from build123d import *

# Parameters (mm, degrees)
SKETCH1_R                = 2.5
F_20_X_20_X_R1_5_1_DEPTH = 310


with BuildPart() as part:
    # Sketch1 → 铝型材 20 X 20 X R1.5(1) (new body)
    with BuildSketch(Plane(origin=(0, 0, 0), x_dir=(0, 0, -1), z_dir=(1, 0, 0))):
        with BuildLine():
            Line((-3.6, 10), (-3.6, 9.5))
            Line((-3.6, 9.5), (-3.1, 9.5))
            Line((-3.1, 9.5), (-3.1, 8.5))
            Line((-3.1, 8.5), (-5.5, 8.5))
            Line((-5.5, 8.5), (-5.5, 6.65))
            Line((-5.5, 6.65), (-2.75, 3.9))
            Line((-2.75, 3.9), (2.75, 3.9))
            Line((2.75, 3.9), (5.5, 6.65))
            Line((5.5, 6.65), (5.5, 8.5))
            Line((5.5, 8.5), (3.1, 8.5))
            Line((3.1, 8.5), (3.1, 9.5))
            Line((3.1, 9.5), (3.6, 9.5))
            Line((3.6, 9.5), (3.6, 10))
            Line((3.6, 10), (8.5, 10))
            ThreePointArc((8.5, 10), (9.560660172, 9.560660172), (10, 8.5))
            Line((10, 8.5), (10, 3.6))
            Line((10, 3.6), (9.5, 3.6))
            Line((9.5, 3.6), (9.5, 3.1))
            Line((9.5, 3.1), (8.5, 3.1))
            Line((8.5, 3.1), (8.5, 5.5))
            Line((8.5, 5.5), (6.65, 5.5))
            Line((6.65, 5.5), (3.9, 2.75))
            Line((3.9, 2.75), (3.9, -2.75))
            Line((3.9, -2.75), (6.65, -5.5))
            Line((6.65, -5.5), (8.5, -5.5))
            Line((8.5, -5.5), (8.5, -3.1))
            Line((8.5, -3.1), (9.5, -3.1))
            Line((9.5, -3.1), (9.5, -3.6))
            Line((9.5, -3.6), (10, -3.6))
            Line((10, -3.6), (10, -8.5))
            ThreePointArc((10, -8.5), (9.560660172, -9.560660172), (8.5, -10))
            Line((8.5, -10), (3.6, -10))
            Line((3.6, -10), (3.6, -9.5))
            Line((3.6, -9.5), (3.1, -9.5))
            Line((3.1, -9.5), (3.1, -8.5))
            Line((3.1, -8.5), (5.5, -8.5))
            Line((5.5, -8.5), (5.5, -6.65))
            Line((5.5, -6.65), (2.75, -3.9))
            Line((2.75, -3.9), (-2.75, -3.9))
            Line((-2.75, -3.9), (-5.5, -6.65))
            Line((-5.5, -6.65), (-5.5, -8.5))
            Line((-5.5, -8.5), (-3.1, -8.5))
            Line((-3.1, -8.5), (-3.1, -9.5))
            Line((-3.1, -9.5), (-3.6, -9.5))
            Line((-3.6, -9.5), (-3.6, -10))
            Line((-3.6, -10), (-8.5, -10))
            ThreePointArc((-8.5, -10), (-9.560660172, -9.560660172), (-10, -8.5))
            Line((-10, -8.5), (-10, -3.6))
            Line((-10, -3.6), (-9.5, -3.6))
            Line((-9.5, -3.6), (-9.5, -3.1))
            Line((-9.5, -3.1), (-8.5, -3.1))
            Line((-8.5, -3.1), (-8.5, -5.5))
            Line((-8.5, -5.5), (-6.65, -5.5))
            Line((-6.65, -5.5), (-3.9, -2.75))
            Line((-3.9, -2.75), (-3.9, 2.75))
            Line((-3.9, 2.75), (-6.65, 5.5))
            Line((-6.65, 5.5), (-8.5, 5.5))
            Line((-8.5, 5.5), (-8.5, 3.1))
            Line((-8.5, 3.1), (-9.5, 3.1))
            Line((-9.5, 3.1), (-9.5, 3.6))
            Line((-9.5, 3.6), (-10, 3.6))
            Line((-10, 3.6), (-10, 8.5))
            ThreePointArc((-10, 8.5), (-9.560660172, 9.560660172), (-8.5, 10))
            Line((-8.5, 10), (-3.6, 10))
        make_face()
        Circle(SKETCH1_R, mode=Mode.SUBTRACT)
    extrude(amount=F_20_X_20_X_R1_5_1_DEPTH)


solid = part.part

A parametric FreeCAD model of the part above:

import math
import FreeCAD as App
import Part
import Sketcher

doc = App.newDocument("Part")
body = doc.addObject("PartDesign::Body", "Body")

# Sketch on YZ plane
sketch1 = body.newObject("Sketcher::SketchObject", "Sketch")
sketch1.AttachmentSupport = (doc.getObject("YZ_Plane"), [""])
sketch1.MapMode = "FlatFace"
sketch1.addGeometry(Part.LineSegment(App.Vector(9.5, 3.6, 0), App.Vector(10, 3.6, 0)), False)
sketch1.addGeometry(Part.LineSegment(App.Vector(10, 3.6, 0), App.Vector(10, 8.5, 0)), False)
sketch1.addGeometry(Part.ArcOfCircle(Part.Circle(App.Vector(8.5, 8.5, 0), App.Vector(0, 0, 1), 1.5), math.radians(0), math.radians(90)), False)
sketch1.addGeometry(Part.LineSegment(App.Vector(8.5, 10, 0), App.Vector(3.6, 10, 0)), False)
sketch1.addGeometry(Part.LineSegment(App.Vector(3.6, 10, 0), App.Vector(3.6, 9.5, 0)), False)
sketch1.addGeometry(Part.LineSegment(App.Vector(3.6, 9.5, 0), App.Vector(3.1, 9.5, 0)), False)
sketch1.addGeometry(Part.LineSegment(App.Vector(3.1, 9.5, 0), App.Vector(3.1, 8.5, 0)), False)
sketch1.addGeometry(Part.LineSegment(App.Vector(3.1, 8.5, 0), App.Vector(5.5, 8.5, 0)), False)
sketch1.addGeometry(Part.LineSegment(App.Vector(5.5, 8.5, 0), App.Vector(5.5, 6.65, 0)), False)
sketch1.addGeometry(Part.LineSegment(App.Vector(5.5, 6.65, 0), App.Vector(2.75, 3.9, 0)), False)
sketch1.addGeometry(Part.LineSegment(App.Vector(2.75, 3.9, 0), App.Vector(-2.75, 3.9, 0)), False)
sketch1.addGeometry(Part.LineSegment(App.Vector(-2.75, 3.9, 0), App.Vector(-5.5, 6.65, 0)), False)
sketch1.addGeometry(Part.LineSegment(App.Vector(-5.5, 6.65, 0), App.Vector(-5.5, 8.5, 0)), False)
sketch1.addGeometry(Part.LineSegment(App.Vector(-5.5, 8.5, 0), App.Vector(-3.1, 8.5, 0)), False)
sketch1.addGeometry(Part.LineSegment(App.Vector(-3.1, 8.5, 0), App.Vector(-3.1, 9.5, 0)), False)
sketch1.addGeometry(Part.LineSegment(App.Vector(-3.1, 9.5, 0), App.Vector(-3.6, 9.5, 0)), False)
sketch1.addGeometry(Part.LineSegment(App.Vector(-3.6, 9.5, 0), App.Vector(-3.6, 10, 0)), False)
sketch1.addGeometry(Part.LineSegment(App.Vector(-3.6, 10, 0), App.Vector(-8.5, 10, 0)), False)
sketch1.addGeometry(Part.ArcOfCircle(Part.Circle(App.Vector(-8.5, 8.5, 0), App.Vector(0, 0, 1), 1.5), math.radians(90), math.radians(180)), False)
sketch1.addGeometry(Part.LineSegment(App.Vector(-10, 8.5, 0), App.Vector(-10, 3.6, 0)), False)
sketch1.addGeometry(Part.LineSegment(App.Vector(-10, 3.6, 0), App.Vector(-9.5, 3.6, 0)), False)
sketch1.addGeometry(Part.LineSegment(App.Vector(-9.5, 3.6, 0), App.Vector(-9.5, 3.1, 0)), False)
sketch1.addGeometry(Part.LineSegment(App.Vector(-9.5, 3.1, 0), App.Vector(-8.5, 3.1, 0)), False)
sketch1.addGeometry(Part.LineSegment(App.Vector(-8.5, 3.1, 0), App.Vector(-8.5, 5.5, 0)), False)
sketch1.addGeometry(Part.LineSegment(App.Vector(-8.5, 5.5, 0), App.Vector(-6.65, 5.5, 0)), False)
sketch1.addGeometry(Part.LineSegment(App.Vector(-6.65, 5.5, 0), App.Vector(-3.9, 2.75, 0)), False)
sketch1.addGeometry(Part.LineSegment(App.Vector(-3.9, 2.75, 0), App.Vector(-3.9, -2.75, 0)), False)
sketch1.addGeometry(Part.LineSegment(App.Vector(-3.9, -2.75, 0), App.Vector(-6.65, -5.5, 0)), False)
sketch1.addGeometry(Part.LineSegment(App.Vector(-6.65, -5.5, 0), App.Vector(-8.5, -5.5, 0)), False)
sketch1.addGeometry(Part.LineSegment(App.Vector(-8.5, -5.5, 0), App.Vector(-8.5, -3.1, 0)), False)
sketch1.addGeometry(Part.LineSegment(App.Vector(-8.5, -3.1, 0), App.Vector(-9.5, -3.1, 0)), False)
sketch1.addGeometry(Part.LineSegment(App.Vector(-9.5, -3.1, 0), App.Vector(-9.5, -3.6, 0)), False)
sketch1.addGeometry(Part.LineSegment(App.Vector(-9.5, -3.6, 0), App.Vector(-10, -3.6, 0)), False)
sketch1.addGeometry(Part.LineSegment(App.Vector(-10, -3.6, 0), App.Vector(-10, -8.5, 0)), False)
sketch1.addGeometry(Part.ArcOfCircle(Part.Circle(App.Vector(-8.5, -8.5, 0), App.Vector(0, 0, 1), 1.5), math.radians(180), math.radians(270)), False)
sketch1.addGeometry(Part.LineSegment(App.Vector(-8.5, -10, 0), App.Vector(-3.6, -10, 0)), False)
sketch1.addGeometry(Part.LineSegment(App.Vector(-3.6, -10, 0), App.Vector(-3.6, -9.5, 0)), False)
sketch1.addGeometry(Part.LineSegment(App.Vector(-3.6, -9.5, 0), App.Vector(-3.1, -9.5, 0)), False)
sketch1.addGeometry(Part.LineSegment(App.Vector(-3.1, -9.5, 0), App.Vector(-3.1, -8.5, 0)), False)
sketch1.addGeometry(Part.LineSegment(App.Vector(-3.1, -8.5, 0), App.Vector(-5.5, -8.5, 0)), False)
sketch1.addGeometry(Part.LineSegment(App.Vector(-5.5, -8.5, 0), App.Vector(-5.5, -6.65, 0)), False)
sketch1.addGeometry(Part.LineSegment(App.Vector(-5.5, -6.65, 0), App.Vector(-2.75, -3.9, 0)), False)
sketch1.addGeometry(Part.LineSegment(App.Vector(-2.75, -3.9, 0), App.Vector(2.75, -3.9, 0)), False)
sketch1.addGeometry(Part.LineSegment(App.Vector(2.75, -3.9, 0), App.Vector(5.5, -6.65, 0)), False)
sketch1.addGeometry(Part.LineSegment(App.Vector(5.5, -6.65, 0), App.Vector(5.5, -8.5, 0)), False)
sketch1.addGeometry(Part.LineSegment(App.Vector(5.5, -8.5, 0), App.Vector(3.1, -8.5, 0)), False)
sketch1.addGeometry(Part.LineSegment(App.Vector(3.1, -8.5, 0), App.Vector(3.1, -9.5, 0)), False)
sketch1.addGeometry(Part.LineSegment(App.Vector(3.1, -9.5, 0), App.Vector(3.6, -9.5, 0)), False)
sketch1.addGeometry(Part.LineSegment(App.Vector(3.6, -9.5, 0), App.Vector(3.6, -10, 0)), False)
sketch1.addGeometry(Part.LineSegment(App.Vector(3.6, -10, 0), App.Vector(8.5, -10, 0)), False)
sketch1.addGeometry(Part.ArcOfCircle(Part.Circle(App.Vector(8.5, -8.5, 0), App.Vector(0, 0, 1), 1.5), math.radians(-90), math.radians(0)), False)
sketch1.addGeometry(Part.LineSegment(App.Vector(10, -8.5, 0), App.Vector(10, -3.6, 0)), False)
sketch1.addGeometry(Part.LineSegment(App.Vector(10, -3.6, 0), App.Vector(9.5, -3.6, 0)), False)
sketch1.addGeometry(Part.LineSegment(App.Vector(9.5, -3.6, 0), App.Vector(9.5, -3.1, 0)), False)
sketch1.addGeometry(Part.LineSegment(App.Vector(9.5, -3.1, 0), App.Vector(8.5, -3.1, 0)), False)
sketch1.addGeometry(Part.LineSegment(App.Vector(8.5, -3.1, 0), App.Vector(8.5, -5.5, 0)), False)
sketch1.addGeometry(Part.LineSegment(App.Vector(8.5, -5.5, 0), App.Vector(6.65, -5.5, 0)), False)
sketch1.addGeometry(Part.LineSegment(App.Vector(6.65, -5.5, 0), App.Vector(3.9, -2.75, 0)), False)
sketch1.addGeometry(Part.LineSegment(App.Vector(3.9, -2.75, 0), App.Vector(3.9, 2.75, 0)), False)
sketch1.addGeometry(Part.LineSegment(App.Vector(3.9, 2.75, 0), App.Vector(6.65, 5.5, 0)), False)
sketch1.addGeometry(Part.LineSegment(App.Vector(6.65, 5.5, 0), App.Vector(8.5, 5.5, 0)), False)
sketch1.addGeometry(Part.LineSegment(App.Vector(8.5, 5.5, 0), App.Vector(8.5, 3.1, 0)), False)
sketch1.addGeometry(Part.LineSegment(App.Vector(8.5, 3.1, 0), App.Vector(9.5, 3.1, 0)), False)
sketch1.addGeometry(Part.LineSegment(App.Vector(9.5, 3.1, 0), App.Vector(9.5, 3.6, 0)), False)
sketch1.addGeometry(Part.Circle(App.Vector(0, 0, 0), App.Vector(0, 0, 1), 2.5), False)
sketch1.addConstraint(Sketcher.Constraint("Coincident", 0, 2, 1, 1))
sketch1.addConstraint(Sketcher.Constraint("Tangent", 1, 2, 2, 1))
sketch1.addConstraint(Sketcher.Constraint("Tangent", 2, 2, 3, 1))
sketch1.addConstraint(Sketcher.Constraint("Coincident", 3, 2, 4, 1))
sketch1.addConstraint(Sketcher.Constraint("Coincident", 4, 2, 5, 1))
sketch1.addConstraint(Sketcher.Constraint("Coincident", 5, 2, 6, 1))
sketch1.addConstraint(Sketcher.Constraint("Coincident", 6, 2, 7, 1))
sketch1.addConstraint(Sketcher.Constraint("Coincident", 7, 2, 8, 1))
sketch1.addConstraint(Sketcher.Constraint("Coincident", 8, 2, 9, 1))
sketch1.addConstraint(Sketcher.Constraint("Coincident", 9, 2, 10, 1))
sketch1.addConstraint(Sketcher.Constraint("Coincident", 10, 2, 11, 1))
sketch1.addConstraint(Sketcher.Constraint("Coincident", 11, 2, 12, 1))
sketch1.addConstraint(Sketcher.Constraint("Coincident", 12, 2, 13, 1))
sketch1.addConstraint(Sketcher.Constraint("Coincident", 13, 2, 14, 1))
sketch1.addConstraint(Sketcher.Constraint("Coincident", 14, 2, 15, 1))
sketch1.addConstraint(Sketcher.Constraint("Coincident", 15, 2, 16, 1))
sketch1.addConstraint(Sketcher.Constraint("Coincident", 16, 2, 17, 1))
sketch1.addConstraint(Sketcher.Constraint("Tangent", 17, 2, 18, 1))
sketch1.addConstraint(Sketcher.Constraint("Tangent", 18, 2, 19, 1))
sketch1.addConstraint(Sketcher.Constraint("Coincident", 19, 2, 20, 1))
sketch1.addConstraint(Sketcher.Constraint("Coincident", 20, 2, 21, 1))
sketch1.addConstraint(Sketcher.Constraint("Coincident", 21, 2, 22, 1))
sketch1.addConstraint(Sketcher.Constraint("Coincident", 22, 2, 23, 1))
sketch1.addConstraint(Sketcher.Constraint("Coincident", 23, 2, 24, 1))
sketch1.addConstraint(Sketcher.Constraint("Coincident", 24, 2, 25, 1))
sketch1.addConstraint(Sketcher.Constraint("Coincident", 25, 2, 26, 1))
sketch1.addConstraint(Sketcher.Constraint("Coincident", 26, 2, 27, 1))
sketch1.addConstraint(Sketcher.Constraint("Coincident", 27, 2, 28, 1))
sketch1.addConstraint(Sketcher.Constraint("Coincident", 28, 2, 29, 1))
sketch1.addConstraint(Sketcher.Constraint("Coincident", 29, 2, 30, 1))
sketch1.addConstraint(Sketcher.Constraint("Coincident", 30, 2, 31, 1))
sketch1.addConstraint(Sketcher.Constraint("Coincident", 31, 2, 32, 1))
sketch1.addConstraint(Sketcher.Constraint("Coincident", 32, 2, 33, 1))
sketch1.addConstraint(Sketcher.Constraint("Tangent", 33, 2, 34, 1))
sketch1.addConstraint(Sketcher.Constraint("Tangent", 34, 2, 35, 1))
sketch1.addConstraint(Sketcher.Constraint("Coincident", 35, 2, 36, 1))
sketch1.addConstraint(Sketcher.Constraint("Coincident", 36, 2, 37, 1))
sketch1.addConstraint(Sketcher.Constraint("Coincident", 37, 2, 38, 1))
sketch1.addConstraint(Sketcher.Constraint("Coincident", 38, 2, 39, 1))
sketch1.addConstraint(Sketcher.Constraint("Coincident", 39, 2, 40, 1))
sketch1.addConstraint(Sketcher.Constraint("Coincident", 40, 2, 41, 1))
sketch1.addConstraint(Sketcher.Constraint("Coincident", 41, 2, 42, 1))
sketch1.addConstraint(Sketcher.Constraint("Coincident", 42, 2, 43, 1))
sketch1.addConstraint(Sketcher.Constraint("Coincident", 43, 2, 44, 1))
sketch1.addConstraint(Sketcher.Constraint("Coincident", 44, 2, 45, 1))
sketch1.addConstraint(Sketcher.Constraint("Coincident", 45, 2, 46, 1))
sketch1.addConstraint(Sketcher.Constraint("Coincident", 46, 2, 47, 1))
sketch1.addConstraint(Sketcher.Constraint("Coincident", 47, 2, 48, 1))
sketch1.addConstraint(Sketcher.Constraint("Coincident", 48, 2, 49, 1))
sketch1.addConstraint(Sketcher.Constraint("Tangent", 49, 2, 50, 1))
sketch1.addConstraint(Sketcher.Constraint("Tangent", 50, 2, 51, 1))
sketch1.addConstraint(Sketcher.Constraint("Coincident", 51, 2, 52, 1))
sketch1.addConstraint(Sketcher.Constraint("Coincident", 52, 2, 53, 1))
sketch1.addConstraint(Sketcher.Constraint("Coincident", 53, 2, 54, 1))
sketch1.addConstraint(Sketcher.Constraint("Coincident", 54, 2, 55, 1))
sketch1.addConstraint(Sketcher.Constraint("Coincident", 55, 2, 56, 1))
sketch1.addConstraint(Sketcher.Constraint("Coincident", 56, 2, 57, 1))
sketch1.addConstraint(Sketcher.Constraint("Coincident", 57, 2, 58, 1))
sketch1.addConstraint(Sketcher.Constraint("Coincident", 58, 2, 59, 1))
sketch1.addConstraint(Sketcher.Constraint("Coincident", 59, 2, 60, 1))
sketch1.addConstraint(Sketcher.Constraint("Coincident", 60, 2, 61, 1))
sketch1.addConstraint(Sketcher.Constraint("Coincident", 61, 2, 62, 1))
sketch1.addConstraint(Sketcher.Constraint("Coincident", 62, 2, 63, 1))
sketch1.addConstraint(Sketcher.Constraint("Coincident", 63, 2, 0, 1))
sketch1.addConstraint(Sketcher.Constraint("Horizontal", 0))
sketch1.addConstraint(Sketcher.Constraint("Vertical", 1))
sketch1.addConstraint(Sketcher.Constraint("Horizontal", 3))
sketch1.addConstraint(Sketcher.Constraint("Vertical", 4))
sketch1.addConstraint(Sketcher.Constraint("Horizontal", 5))
sketch1.addConstraint(Sketcher.Constraint("Vertical", 6))
sketch1.addConstraint(Sketcher.Constraint("Horizontal", 7))
sketch1.addConstraint(Sketcher.Constraint("Vertical", 8))
sketch1.addConstraint(Sketcher.Constraint("Horizontal", 10))
sketch1.addConstraint(Sketcher.Constraint("Vertical", 12))
sketch1.addConstraint(Sketcher.Constraint("Horizontal", 13))
sketch1.addConstraint(Sketcher.Constraint("Vertical", 14))
sketch1.addConstraint(Sketcher.Constraint("Horizontal", 15))
sketch1.addConstraint(Sketcher.Constraint("Vertical", 16))
sketch1.addConstraint(Sketcher.Constraint("Horizontal", 17))
sketch1.addConstraint(Sketcher.Constraint("Vertical", 19))
sketch1.addConstraint(Sketcher.Constraint("Horizontal", 20))
sketch1.addConstraint(Sketcher.Constraint("Vertical", 21))
sketch1.addConstraint(Sketcher.Constraint("Horizontal", 22))
sketch1.addConstraint(Sketcher.Constraint("Vertical", 23))
sketch1.addConstraint(Sketcher.Constraint("Horizontal", 24))
sketch1.addConstraint(Sketcher.Constraint("Vertical", 26))
sketch1.addConstraint(Sketcher.Constraint("Horizontal", 28))
sketch1.addConstraint(Sketcher.Constraint("Vertical", 29))
sketch1.addConstraint(Sketcher.Constraint("Horizontal", 30))
sketch1.addConstraint(Sketcher.Constraint("Vertical", 31))
sketch1.addConstraint(Sketcher.Constraint("Horizontal", 32))
sketch1.addConstraint(Sketcher.Constraint("Vertical", 33))
sketch1.addConstraint(Sketcher.Constraint("Horizontal", 35))
sketch1.addConstraint(Sketcher.Constraint("Vertical", 36))
sketch1.addConstraint(Sketcher.Constraint("Horizontal", 37))
sketch1.addConstraint(Sketcher.Constraint("Vertical", 38))
sketch1.addConstraint(Sketcher.Constraint("Horizontal", 39))
sketch1.addConstraint(Sketcher.Constraint("Vertical", 40))
sketch1.addConstraint(Sketcher.Constraint("Horizontal", 42))
sketch1.addConstraint(Sketcher.Constraint("Vertical", 44))
sketch1.addConstraint(Sketcher.Constraint("Horizontal", 45))
sketch1.addConstraint(Sketcher.Constraint("Vertical", 46))
sketch1.addConstraint(Sketcher.Constraint("Horizontal", 47))
sketch1.addConstraint(Sketcher.Constraint("Vertical", 48))
sketch1.addConstraint(Sketcher.Constraint("Horizontal", 49))
sketch1.addConstraint(Sketcher.Constraint("Vertical", 51))
sketch1.addConstraint(Sketcher.Constraint("Horizontal", 52))
sketch1.addConstraint(Sketcher.Constraint("Vertical", 53))
sketch1.addConstraint(Sketcher.Constraint("Horizontal", 54))
sketch1.addConstraint(Sketcher.Constraint("Vertical", 55))
sketch1.addConstraint(Sketcher.Constraint("Horizontal", 56))
sketch1.addConstraint(Sketcher.Constraint("Vertical", 58))
sketch1.addConstraint(Sketcher.Constraint("Horizontal", 60))
sketch1.addConstraint(Sketcher.Constraint("Vertical", 61))
sketch1.addConstraint(Sketcher.Constraint("Horizontal", 62))
sketch1.addConstraint(Sketcher.Constraint("Vertical", 63))
sketch1.addConstraint(Sketcher.Constraint("Coincident", 64, 3, -1, 1))
sketch1.addConstraint(Sketcher.Constraint("Equal", 2, 18))
sketch1.addConstraint(Sketcher.Constraint("Equal", 18, 34))
sketch1.addConstraint(Sketcher.Constraint("Equal", 34, 50))
sketch1.addConstraint(Sketcher.Constraint("Symmetric", 2, 3, 34, 3, -1, 1))
sketch1.addConstraint(Sketcher.Constraint("Symmetric", 18, 3, 50, 3, -1, 1))
sketch1.addConstraint(Sketcher.Constraint("Symmetric", 4, 2, 36, 2, -1, 1))
sketch1.addConstraint(Sketcher.Constraint("Symmetric", 6, 2, 38, 2, -1, 1))
sketch1.addConstraint(Sketcher.Constraint("Symmetric", 8, 2, 40, 2, -1, 1))
sketch1.addConstraint(Sketcher.Constraint("Symmetric", 9, 2, 41, 2, -1, 1))
sketch1.addConstraint(Sketcher.Constraint("Symmetric", 11, 2, 43, 2, -1, 1))
sketch1.addConstraint(Sketcher.Constraint("Symmetric", 13, 2, 45, 2, -1, 1))
sketch1.addConstraint(Sketcher.Constraint("Symmetric", 15, 2, 47, 2, -1, 1))
sketch1.addConstraint(Sketcher.Constraint("Symmetric", 20, 2, 52, 2, -1, 1))
sketch1.addConstraint(Sketcher.Constraint("Symmetric", 22, 2, 54, 2, -1, 1))
sketch1.addConstraint(Sketcher.Constraint("Symmetric", 24, 2, 56, 2, -1, 1))
sketch1.addConstraint(Sketcher.Constraint("Symmetric", 25, 2, 57, 2, -1, 1))
sketch1.addConstraint(Sketcher.Constraint("Symmetric", 27, 2, 59, 2, -1, 1))
sketch1.addConstraint(Sketcher.Constraint("Symmetric", 29, 2, 61, 2, -1, 1))
sketch1.addConstraint(Sketcher.Constraint("Symmetric", 31, 2, 63, 2, -1, 1))
sketch1.addConstraint(Sketcher.Constraint("Symmetric", 2, 3, 18, 3, -2))
sketch1.addConstraint(Sketcher.Constraint("Symmetric", 8, 2, 11, 2, -2))
sketch1.addConstraint(Sketcher.Constraint("Symmetric", 6, 2, 13, 2, -2))
sketch1.addConstraint(Sketcher.Constraint("Symmetric", 4, 2, 15, 2, -2))
sketch1.addConstraint(Sketcher.Constraint("Symmetric", 31, 2, 52, 2, -2))
sketch1.addConstraint(Sketcher.Constraint("Symmetric", 29, 2, 54, 2, -2))
sketch1.addConstraint(Sketcher.Constraint("Symmetric", 27, 2, 56, 2, -2))
sketch1.addConstraint(Sketcher.Constraint("Perpendicular", 9, 11))
sketch1.addConstraint(Sketcher.Constraint("Parallel", 11, 25))
sketch1.addConstraint(Sketcher.Constraint("Perpendicular", 25, 27))
sketch1.addConstraint(Sketcher.Constraint("Perpendicular", 41, 43))
sketch1.addConstraint(Sketcher.Constraint("Perpendicular", 57, 59))
sketch1.addConstraint(Sketcher.Constraint("Horizontal", 1, 2, 6, 2))
sketch1.addConstraint(Sketcher.Constraint("Horizontal", 26, 2, 57, 2))
sketch1.addConstraint(Sketcher.Constraint("Vertical", 17, 2, 22, 2))
sketch1.addConstraint(Sketcher.Constraint("Equal", 0, 5))
sketch1.addConstraint(Sketcher.Constraint("Equal", 49, 1))
sketch1.addConstraint(Sketcher.Constraint("Equal", 52, 4))
sketch1.addConstraint(Sketcher.Constraint("Equal", 60, 8))
sketch1.addConstraint(Sketcher.Constraint("Equal", 16, 21))
sketch1.addConstraint(Sketcher.Constraint("Equal", 45, 23))
sketch1.addConstraint(Sketcher.Constraint("Equal", 42, 26))
sketch1.addConstraint(Sketcher.Constraint("Equal", 11, 25))
sketch1.addConstraint(Sketcher.Constraint("Diameter", 64, 5.0))
sketch1.addConstraint(Sketcher.Constraint("Radius", 2, 1.5))
sketch1.addConstraint(Sketcher.Constraint("DistanceX", 22, 1, 22, 2, 1.0))
sketch1.addConstraint(Sketcher.Constraint("DistanceX", 3, 2, 3, 1, 4.9))
sketch1.addConstraint(Sketcher.Constraint("DistanceX", 7, 1, 7, 2, 2.4))
sketch1.addConstraint(Sketcher.Constraint("DistanceX", 10, 2, 10, 1, 5.5))
sketch1.addConstraint(Sketcher.Constraint("DistanceX", -1, 1, 0, 2, 10.0))
sketch1.addConstraint(Sketcher.Constraint("DistanceX", 24, 1, 24, 2, 1.85))
pad1 = body.newObject("PartDesign::Pad", "Pad")
pad1.Profile = sketch1
pad1.Length = 310

doc.recompute()
